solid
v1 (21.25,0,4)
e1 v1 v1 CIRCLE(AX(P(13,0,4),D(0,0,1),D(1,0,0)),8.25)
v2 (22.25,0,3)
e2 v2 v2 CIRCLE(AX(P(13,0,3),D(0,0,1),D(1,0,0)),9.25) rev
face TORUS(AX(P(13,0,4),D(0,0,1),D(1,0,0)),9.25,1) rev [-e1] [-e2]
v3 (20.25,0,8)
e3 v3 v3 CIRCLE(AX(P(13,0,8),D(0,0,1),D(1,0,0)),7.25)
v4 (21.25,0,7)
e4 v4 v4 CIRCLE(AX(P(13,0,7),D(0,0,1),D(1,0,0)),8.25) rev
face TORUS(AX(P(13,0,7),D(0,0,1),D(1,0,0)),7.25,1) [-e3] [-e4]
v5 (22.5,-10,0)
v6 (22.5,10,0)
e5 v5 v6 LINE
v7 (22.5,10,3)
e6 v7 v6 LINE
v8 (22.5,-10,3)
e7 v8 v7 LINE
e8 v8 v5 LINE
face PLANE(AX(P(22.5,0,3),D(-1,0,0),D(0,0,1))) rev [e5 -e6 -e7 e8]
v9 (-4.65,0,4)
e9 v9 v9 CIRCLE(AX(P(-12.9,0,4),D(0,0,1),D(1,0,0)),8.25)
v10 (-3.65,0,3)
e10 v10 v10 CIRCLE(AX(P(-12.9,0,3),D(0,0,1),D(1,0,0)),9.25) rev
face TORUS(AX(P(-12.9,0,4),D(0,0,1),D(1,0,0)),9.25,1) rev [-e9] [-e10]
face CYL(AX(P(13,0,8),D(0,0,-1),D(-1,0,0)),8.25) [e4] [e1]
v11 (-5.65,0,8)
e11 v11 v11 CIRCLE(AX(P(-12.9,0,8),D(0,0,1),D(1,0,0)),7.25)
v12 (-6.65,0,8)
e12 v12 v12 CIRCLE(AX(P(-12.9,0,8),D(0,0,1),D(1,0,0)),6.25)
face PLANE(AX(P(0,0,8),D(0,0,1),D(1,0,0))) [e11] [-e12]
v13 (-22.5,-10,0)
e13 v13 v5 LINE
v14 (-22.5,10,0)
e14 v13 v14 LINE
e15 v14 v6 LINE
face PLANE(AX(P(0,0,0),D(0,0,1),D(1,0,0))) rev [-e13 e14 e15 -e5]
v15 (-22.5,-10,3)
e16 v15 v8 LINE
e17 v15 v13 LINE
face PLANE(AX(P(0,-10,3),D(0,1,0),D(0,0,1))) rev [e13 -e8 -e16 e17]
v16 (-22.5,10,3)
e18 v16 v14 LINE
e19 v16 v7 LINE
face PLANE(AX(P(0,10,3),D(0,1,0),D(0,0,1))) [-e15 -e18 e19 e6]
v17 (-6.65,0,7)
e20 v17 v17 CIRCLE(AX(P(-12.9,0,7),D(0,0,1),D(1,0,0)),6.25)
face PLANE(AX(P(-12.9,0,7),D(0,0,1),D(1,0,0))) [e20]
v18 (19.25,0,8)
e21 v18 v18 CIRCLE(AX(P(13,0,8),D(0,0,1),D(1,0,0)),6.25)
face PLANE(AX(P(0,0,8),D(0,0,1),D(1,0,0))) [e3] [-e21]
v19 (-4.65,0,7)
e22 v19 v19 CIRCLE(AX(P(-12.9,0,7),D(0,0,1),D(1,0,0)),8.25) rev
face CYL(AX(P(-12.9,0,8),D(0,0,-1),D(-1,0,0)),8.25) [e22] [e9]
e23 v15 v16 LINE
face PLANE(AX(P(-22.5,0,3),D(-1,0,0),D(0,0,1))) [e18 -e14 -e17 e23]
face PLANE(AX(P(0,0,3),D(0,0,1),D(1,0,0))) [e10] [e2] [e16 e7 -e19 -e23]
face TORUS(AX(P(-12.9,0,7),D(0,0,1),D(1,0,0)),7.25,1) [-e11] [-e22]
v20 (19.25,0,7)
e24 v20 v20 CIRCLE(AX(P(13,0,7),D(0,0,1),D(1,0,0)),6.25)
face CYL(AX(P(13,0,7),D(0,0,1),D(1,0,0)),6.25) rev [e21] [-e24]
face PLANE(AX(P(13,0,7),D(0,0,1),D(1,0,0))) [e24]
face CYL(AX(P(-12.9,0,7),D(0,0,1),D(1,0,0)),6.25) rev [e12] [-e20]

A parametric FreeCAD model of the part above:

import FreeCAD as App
import Part
import Sketcher


def edges_at(feature, points):
    """Names of the edges that pass closest to the given points."""
    edges = feature.Shape.Edges
    near = lambda p: min(range(len(edges)), key=lambda i: edges[i].distToShape(Part.Vertex(*p))[0])
    return sorted({f"Edge{near(p) + 1}" for p in points})


def add_polygon(sketch, points):
    """Adds a closed chain of lines whose ends are joined by coincident constraints."""
    first, n = sketch.GeometryCount, len(points)
    for a, b in zip(points, points[1:] + points[:1]):
        sketch.addGeometry(Part.LineSegment(App.Vector(*a, 0), App.Vector(*b, 0)), False)
    for i in range(n):
        sketch.addConstraint(Sketcher.Constraint("Coincident", first + i, 2, first + (i + 1) % n, 1))

doc = App.newDocument("Part")
params = doc.addObject("Spreadsheet::Sheet", "Params")
for row, (alias, value) in enumerate([
    ("sketch1_diameter", "16.5 mm"),
    ("sketch1_width", "45 mm"),
    ("sketch1_height", "20 mm"),
    ("pad1_length", "3 mm"),
    ("sketch2_diameter", "16.5 mm"),
    ("pad2_length", "8 mm"),
    ("sketch3_diameter", "12.5 mm"),
    ("pocket1_length", "1 mm"),
    ("fillet_radius", "1 mm"),
], start=1):
    params.set(f"A{row}", alias)
    params.set(f"B{row}", "=" + value)
    params.setAlias(f"B{row}", alias)

body = doc.addObject("PartDesign::Body", "Body")

# Sketch on XY plane
sketch1 = body.newObject("Sketcher::SketchObject", "Sketch")
sketch1.AttachmentSupport = (doc.getObject("XY_Plane"), [""])
sketch1.MapMode = "FlatFace"
add_polygon(sketch1, [(-22, 10), (-22, -10), (22, -10), (22, 10)])  # lines 0-3
sketch1.addGeometry(Part.Circle(App.Vector(-13, 0, 0), App.Vector(0, 0, 1), 8), False)  # 4
sketch1.addGeometry(Part.Circle(App.Vector(13, 0, 0), App.Vector(0, 0, 1), 8), False)  # 5
sketch1.addConstraint([
    Sketcher.Constraint("Vertical", 0),
    Sketcher.Constraint("Horizontal", 1),
    Sketcher.Constraint("Vertical", 2),
    Sketcher.Constraint("Horizontal", 3),
    Sketcher.Constraint("Equal", 4, 5),
    Sketcher.Constraint("Symmetric", 0, 2, 2, 2, -1, 1),
    Sketcher.Constraint("PointOnObject", 4, 3, -1),
    Sketcher.Constraint("PointOnObject", 5, 3, -1),
    Sketcher.Constraint("Diameter", 4, 16.5),
    Sketcher.Constraint("DistanceX", 1, 1, 1, 2, 45.0),
    Sketcher.Constraint("DistanceY", 0, 2, 0, 1, 20.0),
    Sketcher.Constraint("DistanceX", -1, 1, 5, 3, 13.0),
    Sketcher.Constraint("DistanceX", 4, 3, -1, 1, 12.9),
])
sketch1.setExpression("Constraints[12]", "Params.sketch1_diameter")
sketch1.setExpression("Constraints[13]", "Params.sketch1_width")
sketch1.setExpression("Constraints[14]", "Params.sketch1_height")
pad1 = body.newObject("PartDesign::Pad", "Pad")
pad1.Profile = sketch1
pad1.setExpression("Length", "Params.pad1_length")

# Sketch on XY plane
sketch2 = body.newObject("Sketcher::SketchObject", "Sketch001")
sketch2.AttachmentSupport = (doc.getObject("XY_Plane"), [""])
sketch2.MapMode = "FlatFace"
sketch2.addGeometry([
    Part.Circle(App.Vector(-13, 0, 0), App.Vector(0, 0, 1), 8),
    Part.Circle(App.Vector(13, 0, 0), App.Vector(0, 0, 1), 8),
], False)
sketch2.addConstraint([
    Sketcher.Constraint("Equal", 0, 1),
    Sketcher.Constraint("PointOnObject", 0, 3, -1),
    Sketcher.Constraint("PointOnObject", 1, 3, -1),
    Sketcher.Constraint("Diameter", 0, 16.5),
    Sketcher.Constraint("DistanceX", -1, 1, 1, 3, 13.0),
    Sketcher.Constraint("DistanceX", 0, 3, -1, 1, 12.9),
])
sketch2.setExpression("Constraints[3]", "Params.sketch2_diameter")
pad2 = body.newObject("PartDesign::Pad", "Pad001")
pad2.Profile = sketch2
pad2.setExpression("Length", "Params.pad2_length")

# Sketch on XY plane
sketch3 = body.newObject("Sketcher::SketchObject", "Sketch002")
sketch3.AttachmentSupport = (doc.getObject("XY_Plane"), [""])
sketch3.MapMode = "FlatFace"
sketch3.AttachmentOffset = App.Placement(App.Vector(0, 0, 8), App.Rotation())
sketch3.addGeometry([
    Part.Circle(App.Vector(13, 0, 0), App.Vector(0, 0, 1), 6),
    Part.Circle(App.Vector(-13, 0, 0), App.Vector(0, 0, 1), 6),
], False)
sketch3.addConstraint([
    Sketcher.Constraint("Equal", 0, 1),
    Sketcher.Constraint("PointOnObject", 0, 3, -1),
    Sketcher.Constraint("PointOnObject", 1, 3, -1),
    Sketcher.Constraint("Diameter", 0, 12.5),
    Sketcher.Constraint("DistanceX", -1, 1, 0, 3, 13.0),
    Sketcher.Constraint("DistanceX", 1, 3, -1, 1, 12.9),
])
sketch3.setExpression("Constraints[3]", "Params.sketch3_diameter")
pocket1 = body.newObject("PartDesign::Pocket", "Pocket")
pocket1.Profile = sketch3
pocket1.setExpression("Length", "Params.pocket1_length")
doc.recompute()

fillet = body.newObject("PartDesign::Fillet", "Fillet")
fillet.Base = (pocket1, edges_at(pocket1, [
    (-21.15, 0, 3),
    (-21.15, 0, 8),
    (4.75, 0, 3),
    (4.75, 0, 8),
]))
fillet.setExpression("Radius", "Params.fillet_radius")

doc.recompute()
